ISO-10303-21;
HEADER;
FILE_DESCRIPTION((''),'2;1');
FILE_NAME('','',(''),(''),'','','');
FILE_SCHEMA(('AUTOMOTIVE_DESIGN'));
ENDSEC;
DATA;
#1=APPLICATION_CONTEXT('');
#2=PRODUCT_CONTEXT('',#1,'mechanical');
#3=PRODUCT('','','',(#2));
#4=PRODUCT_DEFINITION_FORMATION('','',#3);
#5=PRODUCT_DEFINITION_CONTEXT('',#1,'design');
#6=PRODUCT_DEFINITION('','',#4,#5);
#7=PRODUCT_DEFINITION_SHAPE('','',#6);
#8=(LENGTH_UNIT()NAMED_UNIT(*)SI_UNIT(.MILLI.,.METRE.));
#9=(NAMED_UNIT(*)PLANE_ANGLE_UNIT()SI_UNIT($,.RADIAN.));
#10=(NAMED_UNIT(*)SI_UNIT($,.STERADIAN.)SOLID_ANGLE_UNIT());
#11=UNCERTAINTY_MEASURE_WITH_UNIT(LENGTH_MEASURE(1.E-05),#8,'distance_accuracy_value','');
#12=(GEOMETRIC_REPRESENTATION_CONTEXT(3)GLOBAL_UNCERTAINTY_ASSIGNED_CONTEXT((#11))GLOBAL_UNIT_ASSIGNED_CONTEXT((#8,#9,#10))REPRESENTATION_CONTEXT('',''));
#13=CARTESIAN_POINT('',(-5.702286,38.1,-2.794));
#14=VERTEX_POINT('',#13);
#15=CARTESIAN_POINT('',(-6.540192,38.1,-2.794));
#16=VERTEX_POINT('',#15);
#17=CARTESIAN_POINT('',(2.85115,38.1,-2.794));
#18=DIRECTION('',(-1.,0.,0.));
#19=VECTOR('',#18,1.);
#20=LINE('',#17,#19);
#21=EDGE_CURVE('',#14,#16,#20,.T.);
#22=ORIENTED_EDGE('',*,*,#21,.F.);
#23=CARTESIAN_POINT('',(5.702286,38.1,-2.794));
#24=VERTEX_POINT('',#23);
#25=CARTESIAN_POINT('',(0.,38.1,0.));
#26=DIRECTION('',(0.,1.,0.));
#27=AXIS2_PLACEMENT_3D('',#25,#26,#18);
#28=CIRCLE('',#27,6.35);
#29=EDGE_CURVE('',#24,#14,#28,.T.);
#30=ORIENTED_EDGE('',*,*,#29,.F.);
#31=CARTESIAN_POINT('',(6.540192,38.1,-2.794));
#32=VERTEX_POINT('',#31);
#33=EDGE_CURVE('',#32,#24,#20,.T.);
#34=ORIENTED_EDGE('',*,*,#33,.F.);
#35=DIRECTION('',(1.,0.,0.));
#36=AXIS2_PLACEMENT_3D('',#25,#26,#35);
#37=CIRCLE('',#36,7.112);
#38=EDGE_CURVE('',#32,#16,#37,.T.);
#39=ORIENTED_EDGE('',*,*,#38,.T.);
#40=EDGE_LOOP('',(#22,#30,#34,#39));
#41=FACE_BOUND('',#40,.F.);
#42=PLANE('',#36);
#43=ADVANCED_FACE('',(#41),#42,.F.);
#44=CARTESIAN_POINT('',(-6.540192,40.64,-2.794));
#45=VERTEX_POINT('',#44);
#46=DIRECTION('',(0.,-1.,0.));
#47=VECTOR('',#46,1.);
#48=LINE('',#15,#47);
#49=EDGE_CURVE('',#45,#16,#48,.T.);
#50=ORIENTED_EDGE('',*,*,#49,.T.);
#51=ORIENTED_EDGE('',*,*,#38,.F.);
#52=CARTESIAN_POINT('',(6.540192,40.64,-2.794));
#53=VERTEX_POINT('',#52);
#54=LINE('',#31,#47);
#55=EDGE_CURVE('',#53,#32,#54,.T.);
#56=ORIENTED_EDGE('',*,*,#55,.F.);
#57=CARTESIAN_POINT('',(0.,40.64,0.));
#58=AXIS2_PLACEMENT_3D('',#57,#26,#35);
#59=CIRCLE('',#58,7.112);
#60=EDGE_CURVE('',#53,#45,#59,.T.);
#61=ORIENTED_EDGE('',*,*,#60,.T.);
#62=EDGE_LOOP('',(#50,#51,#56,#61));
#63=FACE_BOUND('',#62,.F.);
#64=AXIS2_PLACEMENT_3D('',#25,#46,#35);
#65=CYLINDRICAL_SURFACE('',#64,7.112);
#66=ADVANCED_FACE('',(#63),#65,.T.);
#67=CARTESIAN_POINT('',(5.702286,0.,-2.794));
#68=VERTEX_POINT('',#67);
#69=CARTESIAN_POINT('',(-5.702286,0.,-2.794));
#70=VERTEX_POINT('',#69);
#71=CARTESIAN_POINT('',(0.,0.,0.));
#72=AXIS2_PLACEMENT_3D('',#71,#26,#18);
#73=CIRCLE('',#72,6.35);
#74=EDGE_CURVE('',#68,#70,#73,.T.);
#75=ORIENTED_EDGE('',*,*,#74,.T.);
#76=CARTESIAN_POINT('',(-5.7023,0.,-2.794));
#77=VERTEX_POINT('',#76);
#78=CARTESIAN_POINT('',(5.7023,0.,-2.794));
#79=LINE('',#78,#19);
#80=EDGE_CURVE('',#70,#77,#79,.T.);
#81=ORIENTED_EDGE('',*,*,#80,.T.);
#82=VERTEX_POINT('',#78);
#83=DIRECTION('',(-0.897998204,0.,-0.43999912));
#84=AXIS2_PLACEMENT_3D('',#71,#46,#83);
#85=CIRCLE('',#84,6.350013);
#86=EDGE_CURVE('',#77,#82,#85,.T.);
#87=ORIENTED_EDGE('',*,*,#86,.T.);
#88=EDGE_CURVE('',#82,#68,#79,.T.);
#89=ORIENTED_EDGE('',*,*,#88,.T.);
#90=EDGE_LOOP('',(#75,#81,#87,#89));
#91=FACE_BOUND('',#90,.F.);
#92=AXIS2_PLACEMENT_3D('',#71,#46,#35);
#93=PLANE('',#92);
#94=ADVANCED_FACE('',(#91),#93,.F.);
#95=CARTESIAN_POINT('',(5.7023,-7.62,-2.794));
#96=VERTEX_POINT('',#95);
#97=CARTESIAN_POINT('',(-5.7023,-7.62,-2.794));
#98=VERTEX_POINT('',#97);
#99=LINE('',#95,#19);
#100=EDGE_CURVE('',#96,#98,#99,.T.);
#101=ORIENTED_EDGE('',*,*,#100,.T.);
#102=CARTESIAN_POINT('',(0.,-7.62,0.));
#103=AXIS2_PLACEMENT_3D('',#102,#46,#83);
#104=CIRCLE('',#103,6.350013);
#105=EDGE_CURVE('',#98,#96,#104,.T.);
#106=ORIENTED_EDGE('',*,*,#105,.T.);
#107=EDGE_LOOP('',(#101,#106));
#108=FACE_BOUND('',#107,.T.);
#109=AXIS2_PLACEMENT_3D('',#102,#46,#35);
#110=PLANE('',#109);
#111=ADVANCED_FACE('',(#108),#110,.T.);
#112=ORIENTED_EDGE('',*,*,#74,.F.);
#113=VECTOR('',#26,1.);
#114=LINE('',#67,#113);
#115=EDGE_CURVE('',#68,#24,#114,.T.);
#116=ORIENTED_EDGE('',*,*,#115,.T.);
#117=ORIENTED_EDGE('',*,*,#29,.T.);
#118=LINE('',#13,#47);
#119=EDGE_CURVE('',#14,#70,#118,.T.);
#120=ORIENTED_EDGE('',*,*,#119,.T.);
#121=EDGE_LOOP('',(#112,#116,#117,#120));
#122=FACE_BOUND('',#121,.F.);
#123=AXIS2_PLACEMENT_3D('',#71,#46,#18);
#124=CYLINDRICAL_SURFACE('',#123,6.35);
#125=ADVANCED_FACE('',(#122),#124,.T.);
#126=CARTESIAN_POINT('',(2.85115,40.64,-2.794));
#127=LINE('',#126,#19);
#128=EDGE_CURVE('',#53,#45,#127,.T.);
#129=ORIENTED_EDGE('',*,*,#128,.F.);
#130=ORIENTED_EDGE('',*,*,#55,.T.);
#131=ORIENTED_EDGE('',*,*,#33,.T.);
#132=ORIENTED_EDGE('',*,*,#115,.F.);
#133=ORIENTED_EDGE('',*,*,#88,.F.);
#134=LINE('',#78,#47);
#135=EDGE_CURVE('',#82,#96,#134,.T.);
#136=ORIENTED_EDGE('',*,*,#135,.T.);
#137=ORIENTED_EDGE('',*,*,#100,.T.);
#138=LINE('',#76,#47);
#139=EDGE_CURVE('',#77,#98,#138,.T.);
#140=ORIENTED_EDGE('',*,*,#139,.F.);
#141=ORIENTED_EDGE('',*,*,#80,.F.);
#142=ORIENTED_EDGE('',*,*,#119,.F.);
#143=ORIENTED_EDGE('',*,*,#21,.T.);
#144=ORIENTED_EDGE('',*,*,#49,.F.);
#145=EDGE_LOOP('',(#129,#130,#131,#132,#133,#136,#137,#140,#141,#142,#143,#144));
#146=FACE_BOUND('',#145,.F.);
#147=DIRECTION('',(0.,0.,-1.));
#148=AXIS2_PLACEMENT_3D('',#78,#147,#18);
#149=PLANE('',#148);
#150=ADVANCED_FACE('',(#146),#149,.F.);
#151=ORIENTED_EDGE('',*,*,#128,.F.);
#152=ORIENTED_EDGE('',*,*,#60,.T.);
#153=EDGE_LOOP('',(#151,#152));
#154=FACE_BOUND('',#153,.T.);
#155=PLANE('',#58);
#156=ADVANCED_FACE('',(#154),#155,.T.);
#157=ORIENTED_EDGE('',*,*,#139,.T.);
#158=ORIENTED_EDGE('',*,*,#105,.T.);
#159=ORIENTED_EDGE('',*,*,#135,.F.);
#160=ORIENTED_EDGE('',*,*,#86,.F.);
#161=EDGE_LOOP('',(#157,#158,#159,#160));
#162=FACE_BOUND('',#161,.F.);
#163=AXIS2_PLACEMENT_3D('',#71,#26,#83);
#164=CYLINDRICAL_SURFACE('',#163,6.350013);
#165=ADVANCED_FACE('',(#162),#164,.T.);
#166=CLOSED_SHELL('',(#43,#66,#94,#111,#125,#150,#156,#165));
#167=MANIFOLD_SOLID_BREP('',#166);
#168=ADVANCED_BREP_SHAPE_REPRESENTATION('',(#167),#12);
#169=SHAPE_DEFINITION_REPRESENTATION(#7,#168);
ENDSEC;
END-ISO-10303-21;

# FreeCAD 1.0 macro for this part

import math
import FreeCAD as App
import Part
import Sketcher
from FreeCAD import Vector
Q = App.Units.Quantity

doc = App.newDocument("Part")
body = doc.addObject("PartDesign::Body", "Body")
body.AllowCompound = True

# Sketch on XZ plane
sketch1 = doc.addObject("Sketcher::SketchObject", "Sketch")
body.addObject(sketch1)
sketch1.AttachmentSupport = (doc.XZ_Plane, [""])
sketch1.MapMode = "FlatFace"
sketch1.addGeometry(Part.Circle(Vector(0, 0, 0), Vector(0, 0, 1), 6), False)
sketch1.addConstraint(Sketcher.Constraint("Coincident", 0, 3, -1, 1))
sketch1.addConstraint(Sketcher.Constraint("Diameter", 0, Q("0.5 in")))
pad1 = doc.addObject("PartDesign::Pad", "Pad")
body.addObject(pad1)
pad1.Profile = sketch1
pad1.Length = Q("1.5 in")
pad1.Reversed = True

# Sketch on XZ plane
sketch2 = doc.addObject("Sketcher::SketchObject", "Sketch001")
body.addObject(sketch2)
sketch2.AttachmentSupport = (doc.XZ_Plane, [""])
sketch2.MapMode = "FlatFace"
sketch2.AttachmentOffset = App.Placement(Vector(0, 0, -1.5 * 25.4), App.Rotation())
sketch2.addGeometry(Part.Circle(Vector(0, 0, 0), Vector(0, 0, 1), 7), False)
sketch2.addConstraint(Sketcher.Constraint("Coincident", 0, 3, -1, 1))
sketch2.addConstraint(Sketcher.Constraint("Diameter", 0, Q("0.56 in")))
pad2 = doc.addObject("PartDesign::Pad", "Pad001")
body.addObject(pad2)
pad2.Profile = sketch2
pad2.Length = Q("0.1 in")
pad2.Reversed = True

# Sketch on XZ plane
sketch3 = doc.addObject("Sketcher::SketchObject", "Sketch002")
body.addObject(sketch3)
sketch3.AttachmentSupport = (doc.XZ_Plane, [""])
sketch3.MapMode = "FlatFace"
sketch3.addGeometry(Part.LineSegment(Vector(-6, 3, 0), Vector(-6, -3, 0)), False)
sketch3.addGeometry(Part.LineSegment(Vector(-6, -3, 0), Vector(6, -3, 0)), False)
sketch3.addGeometry(Part.LineSegment(Vector(6, -3, 0), Vector(6, 3, 0)), False)
sketch3.addGeometry(Part.LineSegment(Vector(6, 3, 0), Vector(-6, 3, 0)), False)
sketch3.addConstraint(Sketcher.Constraint("Coincident", 0, 2, 1, 1))
sketch3.addConstraint(Sketcher.Constraint("Coincident", 1, 2, 2, 1))
sketch3.addConstraint(Sketcher.Constraint("Coincident", 2, 2, 3, 1))
sketch3.addConstraint(Sketcher.Constraint("Coincident", 3, 2, 0, 1))
sketch3.addConstraint(Sketcher.Constraint("Vertical", 0))
sketch3.addConstraint(Sketcher.Constraint("Horizontal", 1))
sketch3.addConstraint(Sketcher.Constraint("Vertical", 2))
sketch3.addConstraint(Sketcher.Constraint("Horizontal", 3))
sketch3.addConstraint(Sketcher.Constraint("Symmetric", 0, 2, 2, 2, -1, 1))
sketch3.addConstraint(Sketcher.Constraint("DistanceY", 0, 2, 0, 1, Q("0.22 in")))
sketch3.addConstraint(Sketcher.Constraint("DistanceX", 1, 1, 1, 2, Q("0.5 in")))
pocket1 = doc.addObject("PartDesign::Pocket", "Pocket")
body.addObject(pocket1)
pocket1.Profile = sketch3
pocket1.Length = Q("0.05 in")

# Sketch on XZ plane
sketch4 = doc.addObject("Sketcher::SketchObject", "Sketch003")
body.addObject(sketch4)
sketch4.AttachmentSupport = (doc.XZ_Plane, [""])
sketch4.MapMode = "FlatFace"
sketch4.AttachmentOffset = App.Placement(Vector(0, 0, -0.05 * 25.4), App.Rotation())
sketch4.addGeometry(Part.LineSegment(Vector(8, -3, 0), Vector(8, 3, 0)), False)
sketch4.addGeometry(Part.LineSegment(Vector(8, 3, 0), Vector(-8, 3, 0)), False)
sketch4.addGeometry(Part.LineSegment(Vector(-8, 3, 0), Vector(-8, -3, 0)), False)
sketch4.addGeometry(Part.LineSegment(Vector(-8, -3, 0), Vector(8, -3, 0)), False)
sketch4.addConstraint(Sketcher.Constraint("Coincident", 0, 2, 1, 1))
sketch4.addConstraint(Sketcher.Constraint("Coincident", 1, 2, 2, 1))
sketch4.addConstraint(Sketcher.Constraint("Coincident", 2, 2, 3, 1))
sketch4.addConstraint(Sketcher.Constraint("Coincident", 3, 2, 0, 1))
sketch4.addConstraint(Sketcher.Constraint("Vertical", 0))
sketch4.addConstraint(Sketcher.Constraint("Horizontal", 1))
sketch4.addConstraint(Sketcher.Constraint("Vertical", 2))
sketch4.addConstraint(Sketcher.Constraint("Horizontal", 3))
sketch4.addConstraint(Sketcher.Constraint("DistanceY", 0, 1, 0, 2, Q("0.22 in")))
sketch4.addConstraint(Sketcher.Constraint("DistanceY", -1, 1, 0, 2, Q("0.11 in")))
sketch4.addConstraint(Sketcher.Constraint("DistanceX", 1, 2, 1, 1, Q("15.7856 mm")))
sketch4.addConstraint(Sketcher.Constraint("DistanceX", -1, 1, 0, 2, Q("0.3218 in")))
pocket2 = doc.addObject("PartDesign::Pocket", "Pocket001")
body.addObject(pocket2)
pocket2.Profile = sketch4
pocket2.Length = Q("0.022 in")

# Sketch on XZ plane
sketch5 = doc.addObject("Sketcher::SketchObject", "Sketch004")
body.addObject(sketch5)
sketch5.AttachmentSupport = (doc.XZ_Plane, [""])
sketch5.MapMode = "FlatFace"
sketch5.AttachmentOffset = App.Placement(Vector(0, 0, -0.05 * 25.4), App.Rotation())
sketch5.addGeometry(Part.LineSegment(Vector(16, -3, 0), Vector(16, 9, 0)), False)
sketch5.addGeometry(Part.LineSegment(Vector(16, 9, 0), Vector(-11, 9, 0)), False)
sketch5.addGeometry(Part.LineSegment(Vector(-11, 9, 0), Vector(-11, -3, 0)), False)
sketch5.addGeometry(Part.LineSegment(Vector(-11, -3, 0), Vector(16, -3, 0)), False)
sketch5.addConstraint(Sketcher.Constraint("Coincident", 0, 2, 1, 1))
sketch5.addConstraint(Sketcher.Constraint("Coincident", 1, 2, 2, 1))
sketch5.addConstraint(Sketcher.Constraint("Coincident", 2, 2, 3, 1))
sketch5.addConstraint(Sketcher.Constraint("Coincident", 3, 2, 0, 1))
sketch5.addConstraint(Sketcher.Constraint("Vertical", 0))
sketch5.addConstraint(Sketcher.Constraint("Horizontal", 1))
sketch5.addConstraint(Sketcher.Constraint("Vertical", 2))
sketch5.addConstraint(Sketcher.Constraint("Horizontal", 3))
sketch5.addConstraint(Sketcher.Constraint("DistanceY", 2, 2, -1, 1, Q("0.11 in")))
sketch5.addConstraint(Sketcher.Constraint("DistanceX", 1, 2, 1, 1, Q("1.0473 in")))
sketch5.addConstraint(Sketcher.Constraint("DistanceY", 0, 1, 0, 2, Q("11.4752 mm")))
sketch5.addConstraint(Sketcher.Constraint("DistanceX", -1, 1, 0, 2, Q("15.529 mm")))
pocket3 = doc.addObject("PartDesign::Pocket", "Pocket002")
body.addObject(pocket3)
pocket3.Profile = sketch5
pocket3.Type = "UpToFirst"

# Sketch on XZ plane
sketch6 = doc.addObject("Sketcher::SketchObject", "Sketch005")
body.addObject(sketch6)
sketch6.AttachmentSupport = (doc.XZ_Plane, [""])
sketch6.MapMode = "FlatFace"
sketch6.addGeometry(Part.LineSegment(Vector(-11, 0, 0), Vector(15, 0, 0)), False)
sketch6.addGeometry(Part.LineSegment(Vector(15, 0, 0), Vector(15, 18, 0)), False)
sketch6.addGeometry(Part.LineSegment(Vector(15, 18, 0), Vector(-11, 18, 0)), False)
sketch6.addGeometry(Part.LineSegment(Vector(-11, 18, 0), Vector(-11, 0, 0)), False)
sketch6.addConstraint(Sketcher.Constraint("Coincident", 0, 2, 1, 1))
sketch6.addConstraint(Sketcher.Constraint("Coincident", 1, 2, 2, 1))
sketch6.addConstraint(Sketcher.Constraint("Coincident", 2, 2, 3, 1))
sketch6.addConstraint(Sketcher.Constraint("Coincident", 3, 2, 0, 1))
sketch6.addConstraint(Sketcher.Constraint("Horizontal", 0))
sketch6.addConstraint(Sketcher.Constraint("Vertical", 1))
sketch6.addConstraint(Sketcher.Constraint("Horizontal", 2))
sketch6.addConstraint(Sketcher.Constraint("Vertical", 3))
sketch6.addConstraint(Sketcher.Constraint("PointOnObject", 0, 2, -1))
sketch6.addConstraint(Sketcher.Constraint("DistanceX", 0, 1, 0, 2, Q("25.3508 mm")))
sketch6.addConstraint(Sketcher.Constraint("DistanceY", 1, 1, 1, 2, Q("18.3203 mm")))
sketch6.addConstraint(Sketcher.Constraint("DistanceX", -1, 1, 0, 2, Q("14.728 mm")))
pocket4 = doc.addObject("PartDesign::Pocket", "Pocket003")
body.addObject(pocket4)
pocket4.Profile = sketch6
pocket4.Length = Q("1 in")

# Sketch on XZ plane
sketch7 = doc.addObject("Sketcher::SketchObject", "Sketch006")
body.addObject(sketch7)
sketch7.AttachmentSupport = (doc.XZ_Plane, [""])
sketch7.MapMode = "FlatFace"
sketch7.addGeometry(Part.LineSegment(Vector(6, -3, 0), Vector(-6, -3, 0)), False)
sketch7.addGeometry(Part.ArcOfCircle(Part.Circle(Vector(0, 0, 0), Vector(0, 0, 1), 6), math.radians(-154), math.radians(-26)), False)
sketch7.addConstraint(Sketcher.Constraint("Coincident", 0, 1, 1, 2))
sketch7.addConstraint(Sketcher.Constraint("Coincident", 1, 1, 0, 2))
sketch7.addConstraint(Sketcher.Constraint("Horizontal", 0))
sketch7.addConstraint(Sketcher.Constraint("Coincident", 1, 3, -1, 1))
sketch7.addConstraint(Sketcher.Constraint("Radius", 1, Q("0.25 in")))
sketch7.addConstraint(Sketcher.Constraint("DistanceX", 0, 2, 0, 1, Q("0.449 in")))
pad3 = doc.addObject("PartDesign::Pad", "Pad002")
body.addObject(pad3)
pad3.Profile = sketch7
pad3.Length = Q("0.3 in")

doc.recompute()
